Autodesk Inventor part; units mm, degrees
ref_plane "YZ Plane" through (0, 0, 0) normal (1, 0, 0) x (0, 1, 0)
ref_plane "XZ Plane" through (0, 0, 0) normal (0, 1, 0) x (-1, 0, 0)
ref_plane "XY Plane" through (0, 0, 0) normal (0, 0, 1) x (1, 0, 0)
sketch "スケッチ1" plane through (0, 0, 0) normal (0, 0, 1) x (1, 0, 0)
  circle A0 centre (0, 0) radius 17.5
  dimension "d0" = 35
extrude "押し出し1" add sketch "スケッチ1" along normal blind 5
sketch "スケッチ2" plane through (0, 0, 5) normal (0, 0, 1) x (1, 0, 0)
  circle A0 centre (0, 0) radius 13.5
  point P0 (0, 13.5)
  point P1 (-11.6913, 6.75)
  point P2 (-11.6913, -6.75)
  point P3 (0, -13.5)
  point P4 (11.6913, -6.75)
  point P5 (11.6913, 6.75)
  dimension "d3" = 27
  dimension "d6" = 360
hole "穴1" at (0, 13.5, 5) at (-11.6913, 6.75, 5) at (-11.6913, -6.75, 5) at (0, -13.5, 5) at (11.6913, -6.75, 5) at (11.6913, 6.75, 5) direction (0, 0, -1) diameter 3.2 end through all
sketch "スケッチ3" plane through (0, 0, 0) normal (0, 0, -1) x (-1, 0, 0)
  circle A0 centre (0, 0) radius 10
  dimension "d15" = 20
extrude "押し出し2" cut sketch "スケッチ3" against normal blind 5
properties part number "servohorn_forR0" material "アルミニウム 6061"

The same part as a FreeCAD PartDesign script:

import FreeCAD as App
import Part
import Sketcher
from FreeCAD import Vector

doc = App.newDocument("Part")
body = doc.addObject("PartDesign::Body", "Body")

# Sketch on XY plane
sketch1 = body.newObject("Sketcher::SketchObject", "Sketch")
sketch1.AttachmentSupport = (doc.getObject("XY_Plane"), [""])
sketch1.MapMode = "FlatFace"
sketch1.addGeometry(Part.Circle(Vector(0, 0, 0), Vector(0, 0, 1), 18), False)
sketch1.addConstraint(Sketcher.Constraint("Coincident", 0, 3, -1, 1))
sketch1.addConstraint(Sketcher.Constraint("Diameter", 0, 35.0))
pad1 = body.newObject("PartDesign::Pad", "Pad")
pad1.Profile = sketch1
pad1.Length = 5

# Sketch on XY plane
sketch2 = body.newObject("Sketcher::SketchObject", "Sketch001")
sketch2.AttachmentSupport = (doc.getObject("XY_Plane"), [""])
sketch2.MapMode = "FlatFace"
sketch2.AttachmentOffset = App.Placement(Vector(0, 0, 5), App.Rotation())
sketch2.addGeometry(Part.Circle(Vector(0, 13.5, 0), Vector(0, 0, 1), 1.6), False)
sketch2.addGeometry(Part.Circle(Vector(-11.7, 6.8, 0), Vector(0, 0, 1), 1.6), False)
sketch2.addGeometry(Part.Circle(Vector(-11.7, -6.8, 0), Vector(0, 0, 1), 1.6), False)
sketch2.addGeometry(Part.Circle(Vector(0, -13.5, 0), Vector(0, 0, 1), 1.6), False)
sketch2.addGeometry(Part.Circle(Vector(11.7, -6.8, 0), Vector(0, 0, 1), 1.6), False)
sketch2.addGeometry(Part.Circle(Vector(11.7, 6.8, 0), Vector(0, 0, 1), 1.6), False)
sketch2.addConstraint(Sketcher.Constraint("Equal", 0, 1))
sketch2.addConstraint(Sketcher.Constraint("Equal", 1, 2))
sketch2.addConstraint(Sketcher.Constraint("Equal", 2, 3))
sketch2.addConstraint(Sketcher.Constraint("Equal", 3, 4))
sketch2.addConstraint(Sketcher.Constraint("Equal", 4, 5))
sketch2.addConstraint(Sketcher.Constraint("Symmetric", 0, 3, 3, 3, -1, 1))
sketch2.addConstraint(Sketcher.Constraint("Symmetric", 1, 3, 4, 3, -1, 1))
sketch2.addConstraint(Sketcher.Constraint("Symmetric", 2, 3, 5, 3, -1, 1))
sketch2.addConstraint(Sketcher.Constraint("Symmetric", 2, 3, 4, 3, -2))
sketch2.addConstraint(Sketcher.Constraint("PointOnObject", 0, 3, -2))
sketch2.addConstraint(Sketcher.Constraint("Diameter", 0, 3.2))
sketch2.addConstraint(Sketcher.Constraint("DistanceY", 3, 3, 0, 3, 27.0))
sketch2.addConstraint(Sketcher.Constraint("DistanceY", 2, 3, 1, 3, 13.5))
sketch2.addConstraint(Sketcher.Constraint("DistanceX", 1, 3, -1, 1, 11.6913))
doc.recompute()
hole = body.newObject("PartDesign::Hole", "Hole")
hole.Profile = sketch2
hole.ThreadType = "None"
hole.Diameter = 3.2
hole.DepthType = "ThroughAll"

# Sketch on XY plane
sketch3 = body.newObject("Sketcher::SketchObject", "Sketch002")
sketch3.AttachmentSupport = (doc.getObject("XY_Plane"), [""])
sketch3.MapMode = "FlatFace"
sketch3.addGeometry(Part.Circle(Vector(0, 0, 0), Vector(0, 0, 1), 10), False)
sketch3.addConstraint(Sketcher.Constraint("Coincident", 0, 3, -1, 1))
sketch3.addConstraint(Sketcher.Constraint("Diameter", 0, 20.0))
pocket1 = body.newObject("PartDesign::Pocket", "Pocket")
pocket1.Profile = sketch3
pocket1.Length = 5
pocket1.Reversed = True

doc.recompute()
